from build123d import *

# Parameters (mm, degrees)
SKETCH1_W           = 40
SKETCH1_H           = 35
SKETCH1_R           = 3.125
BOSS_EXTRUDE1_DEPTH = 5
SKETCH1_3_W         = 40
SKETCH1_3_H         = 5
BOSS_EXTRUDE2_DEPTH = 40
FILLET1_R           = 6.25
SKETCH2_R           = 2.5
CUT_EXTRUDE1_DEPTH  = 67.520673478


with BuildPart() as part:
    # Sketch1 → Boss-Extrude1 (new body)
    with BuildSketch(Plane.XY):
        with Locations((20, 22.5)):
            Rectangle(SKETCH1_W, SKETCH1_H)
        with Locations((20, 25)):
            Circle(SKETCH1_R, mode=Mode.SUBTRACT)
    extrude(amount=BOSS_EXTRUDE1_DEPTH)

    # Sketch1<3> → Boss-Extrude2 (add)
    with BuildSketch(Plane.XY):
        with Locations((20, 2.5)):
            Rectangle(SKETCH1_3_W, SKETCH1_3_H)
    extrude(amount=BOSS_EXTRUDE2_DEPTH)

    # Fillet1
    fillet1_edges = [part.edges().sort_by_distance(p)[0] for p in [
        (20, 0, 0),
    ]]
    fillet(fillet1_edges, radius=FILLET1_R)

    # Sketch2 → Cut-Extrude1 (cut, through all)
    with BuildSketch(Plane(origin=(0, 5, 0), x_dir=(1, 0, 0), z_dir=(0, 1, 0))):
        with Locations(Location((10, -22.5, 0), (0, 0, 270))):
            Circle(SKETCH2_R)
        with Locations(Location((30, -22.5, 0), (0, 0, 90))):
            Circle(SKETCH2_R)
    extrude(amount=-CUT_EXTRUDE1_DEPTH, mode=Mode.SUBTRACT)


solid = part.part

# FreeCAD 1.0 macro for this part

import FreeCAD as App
import Part
import Sketcher
from FreeCAD import Vector
Q = App.Units.Quantity


def edges_at(feature, points):
    """Names of the edges that pass closest to the given points."""
    edges = feature.Shape.Edges
    near = lambda p: min(range(len(edges)), key=lambda i: edges[i].distToShape(Part.Vertex(*p))[0])
    return sorted({f"Edge{near(p) + 1}" for p in points})

doc = App.newDocument("Part")
body = doc.addObject("PartDesign::Body", "Body")

sketch1 = doc.addObject("Sketcher::SketchObject", "Sketch")
body.addObject(sketch1)
sketch1.AttachmentSupport = (doc.XY_Plane, [""])
sketch1.MapMode = "FlatFace"
sketch1.addGeometry([
    Part.LineSegment(Vector(0, 40, 0), Vector(0, 5, 0)),
    Part.LineSegment(Vector(0, 5, 0), Vector(40, 5, 0)),
    Part.LineSegment(Vector(40, 5, 0), Vector(40, 40, 0)),
    Part.LineSegment(Vector(40, 40, 0), Vector(0, 40, 0)),
    Part.Circle(Vector(20, 25, 0), Vector(0, 0, 1), 3.1),
], False)
sketch1.addConstraint([
    Sketcher.Constraint("Coincident", 0, 2, 1, 1),
    Sketcher.Constraint("Coincident", 1, 2, 2, 1),
    Sketcher.Constraint("Coincident", 2, 2, 3, 1),
    Sketcher.Constraint("Coincident", 3, 2, 0, 1),
    Sketcher.Constraint("Vertical", 0),
    Sketcher.Constraint("Horizontal", 1),
    Sketcher.Constraint("Vertical", 2),
    Sketcher.Constraint("Horizontal", 3),
    Sketcher.Constraint("PointOnObject", 0, 2, -2),
    Sketcher.Constraint("Diameter", 4, Q("6.25 mm")),
    Sketcher.Constraint("DistanceX", 1, 1, 1, 2, Q("40 mm")),
    Sketcher.Constraint("DistanceY", 0, 2, 0, 1, Q("35 mm")),
    Sketcher.Constraint("DistanceX", -1, 1, 4, 3, Q("20 mm")),
    Sketcher.Constraint("DistanceY", -1, 1, 4, 3, Q("25 mm")),
    Sketcher.Constraint("DistanceY", -1, 1, 0, 2, Q("5 mm")),
])
pad1 = doc.addObject("PartDesign::Pad", "Pad")
body.addObject(pad1)
pad1.Profile = sketch1
pad1.Length = 5

sketch2 = doc.addObject("Sketcher::SketchObject", "Sketch001")
body.addObject(sketch2)
sketch2.AttachmentSupport = (doc.XY_Plane, [""])
sketch2.MapMode = "FlatFace"
sketch2.addGeometry([
    Part.LineSegment(Vector(0, 5, 0), Vector(0, 0, 0)),
    Part.LineSegment(Vector(0, 0, 0), Vector(40, 0, 0)),
    Part.LineSegment(Vector(40, 0, 0), Vector(40, 5, 0)),
    Part.LineSegment(Vector(40, 5, 0), Vector(0, 5, 0)),
], False)
sketch2.addConstraint([
    Sketcher.Constraint("Coincident", 0, 2, 1, 1),
    Sketcher.Constraint("Coincident", 1, 2, 2, 1),
    Sketcher.Constraint("Coincident", 2, 2, 3, 1),
    Sketcher.Constraint("Coincident", 3, 2, 0, 1),
    Sketcher.Constraint("Vertical", 0),
    Sketcher.Constraint("Horizontal", 1),
    Sketcher.Constraint("Vertical", 2),
    Sketcher.Constraint("Horizontal", 3),
    Sketcher.Constraint("Coincident", 0, 2, -1, 1),
    Sketcher.Constraint("DistanceX", 1, 1, 1, 2, Q("40 mm")),
    Sketcher.Constraint("DistanceY", 0, 2, 0, 1, Q("5 mm")),
])
pad2 = doc.addObject("PartDesign::Pad", "Pad001")
body.addObject(pad2)
pad2.Profile = sketch2
pad2.Length = 40
doc.recompute()

fillet = doc.addObject("PartDesign::Fillet", "Fillet")
body.addObject(fillet)
fillet.Base = (pad2, edges_at(pad2, [(20, 0, 0)]))
fillet.Radius = 6.25

sketch3 = doc.addObject("Sketcher::SketchObject", "Sketch002")
body.addObject(sketch3)
sketch3.AttachmentSupport = (doc.XZ_Plane, [""])
sketch3.MapMode = "FlatFace"
sketch3.AttachmentOffset = App.Placement(Vector(0, 0, -5), App.Rotation())
sketch3.addGeometry([
    Part.Circle(Vector(10, 22.5, 0), Vector(0, 0, 1), 2.5),
    Part.Circle(Vector(30, 22.5, 0), Vector(0, 0, 1), 2.5),
], False)
sketch3.addConstraint([
    Sketcher.Constraint("Equal", 0, 1),
    Sketcher.Constraint("Horizontal", 0, 3, 1, 3),
    Sketcher.Constraint("Diameter", 0, Q("5 mm")),
    Sketcher.Constraint("DistanceX", -1, 1, 0, 3, Q("10 mm")),
    Sketcher.Constraint("DistanceX", -1, 1, 1, 3, Q("30 mm")),
    Sketcher.Constraint("DistanceY", -1, 1, 0, 3, Q("22.5 mm")),
])
pocket1 = doc.addObject("PartDesign::Pocket", "Pocket")
body.addObject(pocket1)
pocket1.Profile = sketch3
pocket1.Type = "ThroughAll"
pocket1.Reversed = True

doc.recompute()
